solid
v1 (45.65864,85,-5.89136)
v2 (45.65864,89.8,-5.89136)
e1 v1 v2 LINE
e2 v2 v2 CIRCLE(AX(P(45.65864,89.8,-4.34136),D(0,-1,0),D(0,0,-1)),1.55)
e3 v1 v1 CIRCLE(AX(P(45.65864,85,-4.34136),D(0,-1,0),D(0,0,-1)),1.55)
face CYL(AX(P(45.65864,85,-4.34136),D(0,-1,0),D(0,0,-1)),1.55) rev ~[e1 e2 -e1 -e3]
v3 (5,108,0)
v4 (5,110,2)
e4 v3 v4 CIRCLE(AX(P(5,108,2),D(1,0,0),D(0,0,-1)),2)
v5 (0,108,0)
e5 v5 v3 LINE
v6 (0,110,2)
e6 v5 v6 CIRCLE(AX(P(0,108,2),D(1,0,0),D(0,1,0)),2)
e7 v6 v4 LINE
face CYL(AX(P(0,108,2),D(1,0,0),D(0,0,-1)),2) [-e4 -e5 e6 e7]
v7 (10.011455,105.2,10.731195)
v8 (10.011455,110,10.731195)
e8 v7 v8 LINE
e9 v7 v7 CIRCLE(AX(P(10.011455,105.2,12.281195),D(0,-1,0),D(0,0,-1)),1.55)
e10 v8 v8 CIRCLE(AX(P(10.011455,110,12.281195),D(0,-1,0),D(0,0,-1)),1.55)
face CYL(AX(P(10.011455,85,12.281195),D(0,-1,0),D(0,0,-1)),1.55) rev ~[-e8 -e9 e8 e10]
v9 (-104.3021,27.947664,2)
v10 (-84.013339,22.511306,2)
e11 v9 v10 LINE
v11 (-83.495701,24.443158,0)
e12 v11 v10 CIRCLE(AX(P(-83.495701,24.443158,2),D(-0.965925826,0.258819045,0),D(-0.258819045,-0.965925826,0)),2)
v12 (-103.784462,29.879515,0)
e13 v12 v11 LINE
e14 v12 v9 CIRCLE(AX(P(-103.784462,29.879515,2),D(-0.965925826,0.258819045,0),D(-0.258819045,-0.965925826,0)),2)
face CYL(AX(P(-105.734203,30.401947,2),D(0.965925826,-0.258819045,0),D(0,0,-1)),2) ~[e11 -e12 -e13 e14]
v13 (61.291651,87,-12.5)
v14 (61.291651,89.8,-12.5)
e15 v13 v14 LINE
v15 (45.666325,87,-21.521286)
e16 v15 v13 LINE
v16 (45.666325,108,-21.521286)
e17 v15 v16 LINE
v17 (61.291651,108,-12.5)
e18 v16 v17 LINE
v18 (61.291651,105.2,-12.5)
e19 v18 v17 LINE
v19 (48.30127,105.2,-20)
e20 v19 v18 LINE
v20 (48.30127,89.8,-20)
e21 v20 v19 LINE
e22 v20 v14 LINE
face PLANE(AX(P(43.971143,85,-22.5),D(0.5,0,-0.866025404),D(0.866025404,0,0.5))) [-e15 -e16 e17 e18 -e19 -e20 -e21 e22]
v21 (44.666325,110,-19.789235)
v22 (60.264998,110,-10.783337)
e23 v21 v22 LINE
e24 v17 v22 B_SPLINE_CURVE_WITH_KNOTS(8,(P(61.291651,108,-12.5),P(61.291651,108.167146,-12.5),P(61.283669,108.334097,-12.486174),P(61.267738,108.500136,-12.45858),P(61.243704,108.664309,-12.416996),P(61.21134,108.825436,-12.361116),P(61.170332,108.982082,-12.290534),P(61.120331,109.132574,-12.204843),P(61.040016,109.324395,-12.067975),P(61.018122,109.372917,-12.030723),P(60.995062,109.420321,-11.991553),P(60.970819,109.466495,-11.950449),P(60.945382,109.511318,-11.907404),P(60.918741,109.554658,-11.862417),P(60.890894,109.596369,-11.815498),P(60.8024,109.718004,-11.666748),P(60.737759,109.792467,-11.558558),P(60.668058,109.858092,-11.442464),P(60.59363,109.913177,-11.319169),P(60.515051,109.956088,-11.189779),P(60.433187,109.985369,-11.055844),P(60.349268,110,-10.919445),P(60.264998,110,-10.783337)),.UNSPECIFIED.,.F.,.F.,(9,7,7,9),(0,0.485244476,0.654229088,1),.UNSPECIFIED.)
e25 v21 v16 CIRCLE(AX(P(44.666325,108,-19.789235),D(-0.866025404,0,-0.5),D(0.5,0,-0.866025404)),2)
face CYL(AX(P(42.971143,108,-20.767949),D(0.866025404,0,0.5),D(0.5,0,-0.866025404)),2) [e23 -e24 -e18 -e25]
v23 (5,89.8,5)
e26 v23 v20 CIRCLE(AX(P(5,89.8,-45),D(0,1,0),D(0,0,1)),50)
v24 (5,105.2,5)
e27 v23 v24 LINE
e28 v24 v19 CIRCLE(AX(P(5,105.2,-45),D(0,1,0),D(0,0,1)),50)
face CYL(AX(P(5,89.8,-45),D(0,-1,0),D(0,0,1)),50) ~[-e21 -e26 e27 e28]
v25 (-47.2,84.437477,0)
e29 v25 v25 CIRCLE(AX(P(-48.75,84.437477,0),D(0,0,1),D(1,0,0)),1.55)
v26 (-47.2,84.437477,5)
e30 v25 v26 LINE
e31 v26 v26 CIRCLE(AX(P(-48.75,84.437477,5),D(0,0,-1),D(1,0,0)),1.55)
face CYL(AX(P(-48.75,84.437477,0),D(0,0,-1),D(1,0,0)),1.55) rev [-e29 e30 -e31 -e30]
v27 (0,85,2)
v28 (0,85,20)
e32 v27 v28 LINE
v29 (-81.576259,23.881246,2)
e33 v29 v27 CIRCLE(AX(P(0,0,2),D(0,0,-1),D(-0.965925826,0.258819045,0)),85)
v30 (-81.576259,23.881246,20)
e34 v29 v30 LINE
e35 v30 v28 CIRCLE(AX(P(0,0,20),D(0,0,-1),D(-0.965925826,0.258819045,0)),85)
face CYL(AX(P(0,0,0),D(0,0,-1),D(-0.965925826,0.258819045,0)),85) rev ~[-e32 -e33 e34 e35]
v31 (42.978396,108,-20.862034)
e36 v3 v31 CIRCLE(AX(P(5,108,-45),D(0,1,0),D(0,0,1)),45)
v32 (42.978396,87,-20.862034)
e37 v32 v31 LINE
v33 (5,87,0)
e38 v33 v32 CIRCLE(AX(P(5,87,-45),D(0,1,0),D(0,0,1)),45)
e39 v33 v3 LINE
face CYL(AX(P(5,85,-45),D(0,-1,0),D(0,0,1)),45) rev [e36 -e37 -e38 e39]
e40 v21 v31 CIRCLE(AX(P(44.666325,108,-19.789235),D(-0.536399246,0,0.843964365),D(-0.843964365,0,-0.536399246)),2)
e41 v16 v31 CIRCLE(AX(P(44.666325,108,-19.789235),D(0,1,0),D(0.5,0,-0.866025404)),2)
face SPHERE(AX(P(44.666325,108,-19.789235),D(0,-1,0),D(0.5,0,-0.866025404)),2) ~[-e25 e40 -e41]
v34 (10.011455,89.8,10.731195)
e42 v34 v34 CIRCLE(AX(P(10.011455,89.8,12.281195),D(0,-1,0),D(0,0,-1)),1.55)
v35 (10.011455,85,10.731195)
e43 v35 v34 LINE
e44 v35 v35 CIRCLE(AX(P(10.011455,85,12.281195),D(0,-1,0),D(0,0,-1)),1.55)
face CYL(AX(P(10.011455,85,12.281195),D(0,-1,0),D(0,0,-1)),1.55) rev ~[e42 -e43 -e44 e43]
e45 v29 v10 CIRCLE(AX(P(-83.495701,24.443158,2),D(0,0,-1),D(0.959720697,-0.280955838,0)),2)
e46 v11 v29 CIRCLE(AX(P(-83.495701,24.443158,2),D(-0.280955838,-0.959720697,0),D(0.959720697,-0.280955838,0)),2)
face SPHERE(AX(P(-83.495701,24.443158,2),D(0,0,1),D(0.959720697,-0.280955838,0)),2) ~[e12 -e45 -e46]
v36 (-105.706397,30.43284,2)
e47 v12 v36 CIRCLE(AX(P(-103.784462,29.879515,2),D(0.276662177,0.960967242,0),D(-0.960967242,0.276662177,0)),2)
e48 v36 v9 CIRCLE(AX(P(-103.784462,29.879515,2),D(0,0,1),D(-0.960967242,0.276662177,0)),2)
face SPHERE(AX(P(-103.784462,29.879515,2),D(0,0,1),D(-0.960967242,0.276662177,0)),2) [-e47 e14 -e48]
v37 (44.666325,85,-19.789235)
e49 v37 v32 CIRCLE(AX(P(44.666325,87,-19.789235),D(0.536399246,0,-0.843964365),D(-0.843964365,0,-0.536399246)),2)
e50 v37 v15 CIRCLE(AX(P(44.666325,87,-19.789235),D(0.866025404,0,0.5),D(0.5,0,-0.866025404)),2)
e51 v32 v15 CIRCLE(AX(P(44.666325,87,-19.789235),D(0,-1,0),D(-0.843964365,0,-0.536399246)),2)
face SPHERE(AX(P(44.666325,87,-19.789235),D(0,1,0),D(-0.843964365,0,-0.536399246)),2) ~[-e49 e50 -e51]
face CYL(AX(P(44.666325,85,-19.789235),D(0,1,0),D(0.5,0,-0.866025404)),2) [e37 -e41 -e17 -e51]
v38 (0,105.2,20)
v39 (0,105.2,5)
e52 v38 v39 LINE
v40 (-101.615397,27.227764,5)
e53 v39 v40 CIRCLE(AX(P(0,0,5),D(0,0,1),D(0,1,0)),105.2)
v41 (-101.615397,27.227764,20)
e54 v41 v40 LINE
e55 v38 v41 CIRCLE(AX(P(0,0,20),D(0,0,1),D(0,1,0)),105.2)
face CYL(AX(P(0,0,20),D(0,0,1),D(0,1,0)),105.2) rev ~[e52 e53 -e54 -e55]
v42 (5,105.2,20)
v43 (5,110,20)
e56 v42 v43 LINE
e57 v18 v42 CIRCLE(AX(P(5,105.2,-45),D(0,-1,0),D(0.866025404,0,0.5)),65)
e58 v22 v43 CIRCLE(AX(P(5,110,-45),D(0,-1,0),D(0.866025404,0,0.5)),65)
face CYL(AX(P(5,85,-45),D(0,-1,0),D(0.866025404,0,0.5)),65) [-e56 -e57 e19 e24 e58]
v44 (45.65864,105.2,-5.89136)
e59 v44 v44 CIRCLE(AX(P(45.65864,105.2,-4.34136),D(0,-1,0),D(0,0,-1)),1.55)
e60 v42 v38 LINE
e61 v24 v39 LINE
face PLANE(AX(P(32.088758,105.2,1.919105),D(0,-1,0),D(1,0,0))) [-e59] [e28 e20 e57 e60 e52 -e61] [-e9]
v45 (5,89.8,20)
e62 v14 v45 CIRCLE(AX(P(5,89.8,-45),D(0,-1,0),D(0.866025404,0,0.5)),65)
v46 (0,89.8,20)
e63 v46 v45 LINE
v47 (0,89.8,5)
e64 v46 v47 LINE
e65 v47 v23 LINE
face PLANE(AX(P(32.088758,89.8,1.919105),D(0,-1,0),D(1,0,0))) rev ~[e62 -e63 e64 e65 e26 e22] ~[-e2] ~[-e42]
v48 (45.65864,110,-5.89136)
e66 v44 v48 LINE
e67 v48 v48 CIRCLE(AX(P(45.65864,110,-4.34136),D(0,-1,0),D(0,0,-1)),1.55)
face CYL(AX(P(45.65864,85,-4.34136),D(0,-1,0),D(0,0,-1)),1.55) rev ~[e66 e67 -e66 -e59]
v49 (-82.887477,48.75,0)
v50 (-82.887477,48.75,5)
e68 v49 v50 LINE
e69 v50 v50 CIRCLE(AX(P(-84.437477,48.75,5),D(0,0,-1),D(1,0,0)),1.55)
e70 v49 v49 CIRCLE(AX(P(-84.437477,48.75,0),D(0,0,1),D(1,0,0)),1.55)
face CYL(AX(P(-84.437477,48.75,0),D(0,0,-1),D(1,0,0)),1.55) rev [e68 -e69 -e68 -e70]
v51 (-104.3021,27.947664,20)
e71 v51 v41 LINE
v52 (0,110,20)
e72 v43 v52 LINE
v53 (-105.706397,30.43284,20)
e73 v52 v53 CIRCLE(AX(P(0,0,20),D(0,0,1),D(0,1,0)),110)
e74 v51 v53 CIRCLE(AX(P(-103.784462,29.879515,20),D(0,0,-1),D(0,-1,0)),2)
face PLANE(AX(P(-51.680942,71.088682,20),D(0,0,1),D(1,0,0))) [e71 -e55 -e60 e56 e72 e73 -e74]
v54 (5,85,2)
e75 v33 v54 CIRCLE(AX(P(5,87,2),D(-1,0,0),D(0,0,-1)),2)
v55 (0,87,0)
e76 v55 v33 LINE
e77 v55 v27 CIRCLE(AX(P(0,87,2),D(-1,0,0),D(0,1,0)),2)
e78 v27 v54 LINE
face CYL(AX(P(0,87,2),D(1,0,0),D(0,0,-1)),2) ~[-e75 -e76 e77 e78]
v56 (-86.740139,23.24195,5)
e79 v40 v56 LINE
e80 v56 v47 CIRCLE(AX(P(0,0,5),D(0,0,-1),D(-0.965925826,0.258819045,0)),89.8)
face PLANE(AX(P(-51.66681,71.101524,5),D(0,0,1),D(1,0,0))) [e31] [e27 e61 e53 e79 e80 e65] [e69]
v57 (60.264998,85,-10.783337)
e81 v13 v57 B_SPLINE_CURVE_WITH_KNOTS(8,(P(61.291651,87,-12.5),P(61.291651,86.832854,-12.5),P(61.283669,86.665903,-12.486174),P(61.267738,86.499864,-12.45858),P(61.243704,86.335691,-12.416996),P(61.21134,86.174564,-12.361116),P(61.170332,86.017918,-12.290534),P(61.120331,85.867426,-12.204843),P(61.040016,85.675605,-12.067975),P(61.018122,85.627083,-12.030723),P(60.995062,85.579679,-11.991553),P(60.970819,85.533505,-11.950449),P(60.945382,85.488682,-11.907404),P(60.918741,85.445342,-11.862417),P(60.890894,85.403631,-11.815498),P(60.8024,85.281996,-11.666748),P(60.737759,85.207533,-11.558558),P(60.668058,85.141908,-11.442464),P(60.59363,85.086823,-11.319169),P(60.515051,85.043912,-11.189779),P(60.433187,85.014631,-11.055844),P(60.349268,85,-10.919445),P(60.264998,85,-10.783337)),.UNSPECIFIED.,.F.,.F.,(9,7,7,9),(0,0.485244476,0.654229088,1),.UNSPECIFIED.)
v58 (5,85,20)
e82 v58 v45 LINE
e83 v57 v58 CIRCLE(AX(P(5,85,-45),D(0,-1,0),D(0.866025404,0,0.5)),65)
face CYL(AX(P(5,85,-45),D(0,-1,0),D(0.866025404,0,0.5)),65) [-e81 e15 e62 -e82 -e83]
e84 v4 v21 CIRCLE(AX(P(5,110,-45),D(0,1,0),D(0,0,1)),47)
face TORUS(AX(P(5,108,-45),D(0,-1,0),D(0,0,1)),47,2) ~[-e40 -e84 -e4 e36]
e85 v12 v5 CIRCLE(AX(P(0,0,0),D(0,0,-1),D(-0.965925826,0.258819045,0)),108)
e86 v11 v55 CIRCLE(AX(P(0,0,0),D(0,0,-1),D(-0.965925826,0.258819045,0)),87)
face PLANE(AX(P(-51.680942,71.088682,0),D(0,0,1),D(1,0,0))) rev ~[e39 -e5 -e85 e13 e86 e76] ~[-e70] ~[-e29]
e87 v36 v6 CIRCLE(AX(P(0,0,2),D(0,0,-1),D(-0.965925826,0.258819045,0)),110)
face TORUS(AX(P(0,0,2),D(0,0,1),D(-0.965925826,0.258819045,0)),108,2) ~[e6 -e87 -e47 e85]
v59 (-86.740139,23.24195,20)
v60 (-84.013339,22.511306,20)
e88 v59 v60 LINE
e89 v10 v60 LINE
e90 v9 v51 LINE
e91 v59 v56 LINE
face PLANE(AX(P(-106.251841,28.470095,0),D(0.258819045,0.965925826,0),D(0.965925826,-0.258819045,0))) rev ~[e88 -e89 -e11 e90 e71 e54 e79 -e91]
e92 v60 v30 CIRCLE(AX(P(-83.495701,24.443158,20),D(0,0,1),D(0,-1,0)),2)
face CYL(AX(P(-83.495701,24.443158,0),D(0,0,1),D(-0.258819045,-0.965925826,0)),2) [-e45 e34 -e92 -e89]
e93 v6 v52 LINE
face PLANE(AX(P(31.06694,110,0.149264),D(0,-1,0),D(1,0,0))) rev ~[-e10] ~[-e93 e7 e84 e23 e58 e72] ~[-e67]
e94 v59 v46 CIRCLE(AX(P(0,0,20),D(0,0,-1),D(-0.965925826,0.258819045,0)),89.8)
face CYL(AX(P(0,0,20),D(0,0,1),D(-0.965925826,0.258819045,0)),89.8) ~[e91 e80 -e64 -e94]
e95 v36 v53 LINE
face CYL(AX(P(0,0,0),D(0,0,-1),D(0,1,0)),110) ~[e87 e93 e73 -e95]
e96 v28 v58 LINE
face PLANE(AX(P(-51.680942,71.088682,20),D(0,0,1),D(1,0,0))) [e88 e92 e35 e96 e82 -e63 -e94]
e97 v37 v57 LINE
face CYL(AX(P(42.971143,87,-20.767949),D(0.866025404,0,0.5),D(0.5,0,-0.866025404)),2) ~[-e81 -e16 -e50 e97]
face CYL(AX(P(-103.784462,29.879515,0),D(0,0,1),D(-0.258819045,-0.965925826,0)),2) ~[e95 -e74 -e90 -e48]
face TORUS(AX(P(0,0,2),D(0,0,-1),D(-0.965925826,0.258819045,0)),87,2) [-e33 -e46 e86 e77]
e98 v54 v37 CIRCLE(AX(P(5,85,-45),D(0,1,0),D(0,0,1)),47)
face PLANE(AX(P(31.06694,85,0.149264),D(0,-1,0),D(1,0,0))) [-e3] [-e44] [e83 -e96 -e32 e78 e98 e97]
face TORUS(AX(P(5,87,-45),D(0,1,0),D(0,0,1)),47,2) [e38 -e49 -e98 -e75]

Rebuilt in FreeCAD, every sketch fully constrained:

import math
import FreeCAD as App
import Part
import Sketcher

V = App.Vector
Q = App.Units.Quantity


def edges_at(feature, points):
    """Names of the edges that pass closest to the given points."""
    edges = feature.Shape.Edges
    near = lambda p: min(range(len(edges)), key=lambda i: edges[i].distToShape(Part.Vertex(*p))[0])
    return sorted({f"Edge{near(p) + 1}" for p in points})

doc = App.newDocument("Part")
body = doc.addObject("PartDesign::Body", "Body")

# Sketch on XY plane
sketch1 = doc.addObject("Sketcher::SketchObject", "Sketch")
body.addObject(sketch1)
sketch1.AttachmentSupport = (doc.XY_Plane, [""])
sketch1.MapMode = "FlatFace"
sketch1.addGeometry([
    Part.LineSegment(V(-106.3, 28.5, 0), V(-82.1, 22, 0)),  # 0
    Part.ArcOfCircle(Part.Circle(V(0, 0, 0), V(0, 0, 1), 85), math.radians(90), math.radians(165)),  # 1
    Part.LineSegment(V(0, 85, 0), V(5, 85, 0)),  # 2
    Part.LineSegment(V(5, 85, 0), V(5, 110, 0)),  # 3
    Part.LineSegment(V(5, 110, 0), V(0, 110, 0)),  # 4
    Part.ArcOfCircle(Part.Circle(V(0, 0, 0), V(0, 0, 1), 110), math.radians(90), math.radians(165)),  # 5
    Part.Circle(V(-84.4, 48.8, 0), V(0, 0, 1), 1.6),  # 6
    Part.Circle(V(-48.8, 84.4, 0), V(0, 0, 1), 1.6),  # 7
], False)
sketch1.addConstraint([
    Sketcher.Constraint("Coincident", 0, 2, 1, 2),
    Sketcher.Constraint("Tangent", 1, 1, 2, 1),
    Sketcher.Constraint("Coincident", 2, 2, 3, 1),
    Sketcher.Constraint("Coincident", 3, 2, 4, 1),
    Sketcher.Constraint("Tangent", 4, 2, 5, 1),
    Sketcher.Constraint("Coincident", 5, 2, 0, 1),
    Sketcher.Constraint("Horizontal", 2),
    Sketcher.Constraint("Vertical", 3),
    Sketcher.Constraint("Horizontal", 4),
    Sketcher.Constraint("Coincident", 1, 3, -1, 1),
    Sketcher.Constraint("Coincident", 5, 3, -1, 1),
    Sketcher.Constraint("Equal", 6, 7),
    Sketcher.Constraint("Radius", 1, Q("85 mm")),
    Sketcher.Constraint("Radius", 5, Q("110 mm")),
    Sketcher.Constraint("Diameter", 6, Q("3.1 mm")),
    Sketcher.Constraint("DistanceX", 2, 1, 2, 2, Q("5 mm")),
    Sketcher.Constraint("Angle", 0, Q("-15 deg")),
    Sketcher.Constraint("DistanceY", -1, 1, 6, 3, Q("48.75 mm")),
    Sketcher.Constraint("DistanceX", 7, 3, -1, 1, Q("48.75 mm")),
    Sketcher.Constraint("DistanceY", -1, 1, 0, 2, Q("21.999619 mm")),
    Sketcher.Constraint("DistanceX", 6, 3, 0, 2, Q("2.333782 mm")),
    Sketcher.Constraint("DistanceY", 0, 2, 7, 3, Q("62.437858 mm")),
])
pad1 = doc.addObject("PartDesign::Pad", "Pad")
body.addObject(pad1)
pad1.Profile = sketch1
pad1.Length = 20

# Sketch on XZ plane
sketch2 = doc.addObject("Sketcher::SketchObject", "Sketch001")
body.addObject(sketch2)
sketch2.AttachmentSupport = (doc.XZ_Plane, [""])
sketch2.MapMode = "FlatFace"
sketch2.AttachmentOffset = App.Placement(V(0, 0, -85), App.Rotation())
sketch2.addGeometry([
    Part.LineSegment(V(44, -22.5, 0), V(61.3, -12.5, 0)),  # 0
    Part.ArcOfCircle(Part.Circle(V(5, -45, 0), V(0, 0, 1), 65), math.radians(30), math.radians(90)),  # 1
    Part.LineSegment(V(5, 20, 0), V(5, 0, 0)),  # 2
    Part.ArcOfCircle(Part.Circle(V(5, -45, 0), V(0, 0, 1), 45), math.radians(30), math.radians(90)),  # 3
    Part.Circle(V(45.7, -4.3, 0), V(0, 0, 1), 1.6),  # 4
    Part.Circle(V(10, 12.3, 0), V(0, 0, 1), 1.6),  # 5
], False)
sketch2.addConstraint([
    Sketcher.Constraint("Coincident", 0, 2, 1, 1),
    Sketcher.Constraint("Coincident", 1, 2, 2, 1),
    Sketcher.Constraint("Coincident", 2, 2, 3, 2),
    Sketcher.Constraint("Coincident", 3, 1, 0, 1),
    Sketcher.Constraint("Vertical", 2),
    Sketcher.Constraint("Coincident", 3, 3, 1, 3),
    Sketcher.Constraint("Equal", 4, 5),
    Sketcher.Constraint("PointOnObject", 2, 2, -1),
    Sketcher.Constraint("Vertical", 3, 3, 1, 2),
    Sketcher.Constraint("Radius", 1, Q("65 mm")),
    Sketcher.Constraint("Radius", 3, Q("45 mm")),
    Sketcher.Constraint("Diameter", 4, Q("3.1 mm")),
    Sketcher.Constraint("Angle", 0, Q("30 deg")),
    Sketcher.Constraint("DistanceX", -1, 1, 1, 3, Q("5 mm")),
    Sketcher.Constraint("DistanceY", 0, 2, -1, 1, Q("12.5 mm")),
    Sketcher.Constraint("DistanceX", -1, 1, 4, 3, Q("45.65864 mm")),
    Sketcher.Constraint("DistanceY", 4, 3, -1, 1, Q("4.34136 mm")),
    Sketcher.Constraint("DistanceX", -1, 1, 5, 3, Q("10.011455 mm")),
    Sketcher.Constraint("DistanceY", -1, 1, 5, 3, Q("12.281195 mm")),
])
pad2 = doc.addObject("PartDesign::Pad", "Pad001")
body.addObject(pad2)
pad2.Profile = sketch2
pad2.Length = 25
pad2.Reversed = True
doc.recompute()

fillet = doc.addObject("PartDesign::Fillet", "Fillet")
body.addObject(fillet)
fillet.Base = (pad2, edges_at(pad2, [
    (-82.104, 22, 10),
    (-106.252, 28.47, 10),
    (43.971, 97.5, -22.5),
    (27.5, 85, -6.029),
    (52.631, 85, -17.5),
    (52.631, 110, -17.5),
    (27.5, 110, -6.029),
    (2.5, 110, 0),
    (2.5, 85, 0),
    (-51.745, 67.435, 0),
    (-94.178, 25.235, 0),
    (-66.964, 87.269, 0),
]))
fillet.Radius = 2

# Sketch on XY plane
sketch3 = doc.addObject("Sketcher::SketchObject", "Sketch002")
body.addObject(sketch3)
sketch3.AttachmentSupport = (doc.XY_Plane, [""])
sketch3.MapMode = "FlatFace"
sketch3.AttachmentOffset = App.Placement(V(0, 0, 20), App.Rotation())
sketch3.addGeometry([
    Part.LineSegment(V(-102, 27, 0), V(-87, 23, 0)),  # 0
    Part.ArcOfCircle(Part.Circle(V(0, 0, 0), V(0, 0, 1), 90), math.radians(90), math.radians(165)),  # 1
    Part.LineSegment(V(0, 90, 0), V(5, 90, 0)),  # 2
    Part.LineSegment(V(5, 90, 0), V(5, 105, 0)),  # 3
    Part.LineSegment(V(5, 105, 0), V(0, 105, 0)),  # 4
    Part.ArcOfCircle(Part.Circle(V(0, 0, 0), V(0, 0, 1), 105), math.radians(90), math.radians(165)),  # 5
], False)
sketch3.addConstraint([
    Sketcher.Constraint("Coincident", 0, 2, 1, 2),
    Sketcher.Constraint("Tangent", 1, 1, 2, 1),
    Sketcher.Constraint("Coincident", 2, 2, 3, 1),
    Sketcher.Constraint("Coincident", 3, 2, 4, 1),
    Sketcher.Constraint("Tangent", 4, 2, 5, 1),
    Sketcher.Constraint("Coincident", 5, 2, 0, 1),
    Sketcher.Constraint("Horizontal", 2),
    Sketcher.Constraint("Vertical", 3),
    Sketcher.Constraint("Horizontal", 4),
    Sketcher.Constraint("Coincident", 1, 3, -1, 1),
    Sketcher.Constraint("Coincident", 5, 3, -1, 1),
    Sketcher.Constraint("Radius", 1, Q("89.8 mm")),
    Sketcher.Constraint("Radius", 5, Q("105.2 mm")),
    Sketcher.Constraint("DistanceX", 2, 1, 2, 2, Q("5 mm")),
    Sketcher.Constraint("Angle", 0, Q("-15 deg")),
    Sketcher.Constraint("DistanceX", 0, 2, -1, 1, Q("86.740139 mm")),
])
pocket1 = doc.addObject("PartDesign::Pocket", "Pocket")
body.addObject(pocket1)
pocket1.Profile = sketch3
pocket1.Length = 15

# Sketch on XZ plane
sketch4 = doc.addObject("Sketcher::SketchObject", "Sketch003")
body.addObject(sketch4)
sketch4.AttachmentSupport = (doc.XZ_Plane, [""])
sketch4.MapMode = "FlatFace"
sketch4.AttachmentOffset = App.Placement(V(0, 0, -89.8), App.Rotation())
sketch4.addGeometry([
    Part.LineSegment(V(5, 20, 0), V(5, 5, 0)),
    Part.ArcOfCircle(Part.Circle(V(5, -45, 0), V(0, 0, 1), 50), math.radians(30), math.radians(90)),
    Part.LineSegment(V(48, -20, 0), V(61, -12, 0)),
    Part.ArcOfCircle(Part.Circle(V(5, -45, 0), V(0, 0, 1), 65), math.radians(30), math.radians(90)),
], False)
sketch4.addConstraint([
    Sketcher.Constraint("Coincident", 0, 2, 1, 2),
    Sketcher.Constraint("Coincident", 1, 1, 2, 1),
    Sketcher.Constraint("Coincident", 2, 2, 3, 1),
    Sketcher.Constraint("Coincident", 3, 2, 0, 1),
    Sketcher.Constraint("Vertical", 0),
    Sketcher.Constraint("Coincident", 3, 3, 1, 3),
    Sketcher.Constraint("Vertical", 3, 3, 0, 2),
    Sketcher.Constraint("Radius", 1, Q("50 mm")),
    Sketcher.Constraint("Radius", 3, Q("65 mm")),
    Sketcher.Constraint("Angle", 2, Q("30 deg")),
    Sketcher.Constraint("DistanceX", -1, 1, 1, 3, Q("5 mm")),
    Sketcher.Constraint("DistanceY", 1, 3, -1, 1, Q("45 mm")),
    Sketcher.Constraint("DistanceY", 1, 1, -1, 1, Q("20 mm")),
])
pocket2 = doc.addObject("PartDesign::Pocket", "Pocket001")
body.addObject(pocket2)
pocket2.Profile = sketch4
pocket2.Length = 15.4

doc.recompute()
